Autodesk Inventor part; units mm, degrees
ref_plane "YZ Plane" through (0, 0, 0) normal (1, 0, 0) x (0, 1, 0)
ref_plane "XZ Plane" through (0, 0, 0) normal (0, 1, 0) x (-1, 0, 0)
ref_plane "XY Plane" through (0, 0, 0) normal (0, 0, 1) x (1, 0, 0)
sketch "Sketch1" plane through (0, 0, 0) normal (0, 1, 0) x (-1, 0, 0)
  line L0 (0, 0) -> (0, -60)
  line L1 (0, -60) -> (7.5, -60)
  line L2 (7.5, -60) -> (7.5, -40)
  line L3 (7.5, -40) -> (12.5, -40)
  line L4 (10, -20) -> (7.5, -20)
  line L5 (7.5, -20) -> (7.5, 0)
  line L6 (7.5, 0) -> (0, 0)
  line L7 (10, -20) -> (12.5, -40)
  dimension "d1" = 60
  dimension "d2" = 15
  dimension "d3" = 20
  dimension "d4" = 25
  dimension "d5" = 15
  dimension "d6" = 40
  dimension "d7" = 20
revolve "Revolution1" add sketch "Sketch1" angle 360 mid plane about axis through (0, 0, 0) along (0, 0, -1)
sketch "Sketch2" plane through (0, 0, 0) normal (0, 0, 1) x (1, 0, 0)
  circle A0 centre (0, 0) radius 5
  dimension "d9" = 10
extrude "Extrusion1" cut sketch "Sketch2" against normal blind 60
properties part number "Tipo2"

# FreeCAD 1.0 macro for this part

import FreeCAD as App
import Part
import Sketcher
from FreeCAD import Vector
Q = App.Units.Quantity


def add_polygon(sketch, points):
    """Adds a closed chain of lines whose ends are joined by coincident constraints."""
    first, n = sketch.GeometryCount, len(points)
    for a, b in zip(points, points[1:] + points[:1]):
        sketch.addGeometry(Part.LineSegment(App.Vector(*a, 0), App.Vector(*b, 0)), False)
    for i in range(n):
        sketch.addConstraint(Sketcher.Constraint("Coincident", first + i, 2, first + (i + 1) % n, 1))

doc = App.newDocument("Part")
body = doc.addObject("PartDesign::Body", "Body")

sketch1 = doc.addObject("Sketcher::SketchObject", "Sketch")
body.addObject(sketch1)
sketch1.AttachmentSupport = (doc.XZ_Plane, [""])
sketch1.MapMode = "FlatFace"
add_polygon(sketch1, [(-7.5, 0), (0, 0), (0, -60), (-7.5, -60), (-7.5, -40), (-12.5, -40), (-10, -20), (-7.5, -20)])
sketch1.addConstraint([
    Sketcher.Constraint("Horizontal", 0),
    Sketcher.Constraint("Vertical", 1),
    Sketcher.Constraint("Horizontal", 2),
    Sketcher.Constraint("Vertical", 3),
    Sketcher.Constraint("Horizontal", 4),
    Sketcher.Constraint("Horizontal", 6),
    Sketcher.Constraint("Vertical", 7),
    Sketcher.Constraint("Coincident", 0, 2, -1, 1),
    Sketcher.Constraint("Vertical", 3, 2, 6, 2),
    Sketcher.Constraint("Equal", 3, 7),
    Sketcher.Constraint("DistanceY", 1, 2, 1, 1, Q("60 mm")),
    Sketcher.Constraint("DistanceY", 3, 1, 3, 2, Q("20 mm")),
    Sketcher.Constraint("DistanceX", 4, 2, 4, 1, Q("5 mm")),
    Sketcher.Constraint("DistanceX", 0, 1, 0, 2, Q("7.5 mm")),
    Sketcher.Constraint("DistanceX", 6, 1, 6, 2, Q("2.5 mm")),
])
revolution = doc.addObject("PartDesign::Revolution", "Revolution")
body.addObject(revolution)
revolution.Profile = sketch1
revolution.ReferenceAxis = (sketch1, ["V_Axis"])
revolution.Angle = 360

sketch2 = doc.addObject("Sketcher::SketchObject", "Sketch001")
body.addObject(sketch2)
sketch2.AttachmentSupport = (doc.XY_Plane, [""])
sketch2.MapMode = "FlatFace"
sketch2.addGeometry(Part.Circle(Vector(0, 0, 0), Vector(0, 0, 1), 5), False)
sketch2.addConstraint([
    Sketcher.Constraint("Coincident", 0, 3, -1, 1),
    Sketcher.Constraint("Diameter", 0, Q("10 mm")),
])
pocket1 = doc.addObject("PartDesign::Pocket", "Pocket")
body.addObject(pocket1)
pocket1.Profile = sketch2
pocket1.Length = 60

doc.recompute()
